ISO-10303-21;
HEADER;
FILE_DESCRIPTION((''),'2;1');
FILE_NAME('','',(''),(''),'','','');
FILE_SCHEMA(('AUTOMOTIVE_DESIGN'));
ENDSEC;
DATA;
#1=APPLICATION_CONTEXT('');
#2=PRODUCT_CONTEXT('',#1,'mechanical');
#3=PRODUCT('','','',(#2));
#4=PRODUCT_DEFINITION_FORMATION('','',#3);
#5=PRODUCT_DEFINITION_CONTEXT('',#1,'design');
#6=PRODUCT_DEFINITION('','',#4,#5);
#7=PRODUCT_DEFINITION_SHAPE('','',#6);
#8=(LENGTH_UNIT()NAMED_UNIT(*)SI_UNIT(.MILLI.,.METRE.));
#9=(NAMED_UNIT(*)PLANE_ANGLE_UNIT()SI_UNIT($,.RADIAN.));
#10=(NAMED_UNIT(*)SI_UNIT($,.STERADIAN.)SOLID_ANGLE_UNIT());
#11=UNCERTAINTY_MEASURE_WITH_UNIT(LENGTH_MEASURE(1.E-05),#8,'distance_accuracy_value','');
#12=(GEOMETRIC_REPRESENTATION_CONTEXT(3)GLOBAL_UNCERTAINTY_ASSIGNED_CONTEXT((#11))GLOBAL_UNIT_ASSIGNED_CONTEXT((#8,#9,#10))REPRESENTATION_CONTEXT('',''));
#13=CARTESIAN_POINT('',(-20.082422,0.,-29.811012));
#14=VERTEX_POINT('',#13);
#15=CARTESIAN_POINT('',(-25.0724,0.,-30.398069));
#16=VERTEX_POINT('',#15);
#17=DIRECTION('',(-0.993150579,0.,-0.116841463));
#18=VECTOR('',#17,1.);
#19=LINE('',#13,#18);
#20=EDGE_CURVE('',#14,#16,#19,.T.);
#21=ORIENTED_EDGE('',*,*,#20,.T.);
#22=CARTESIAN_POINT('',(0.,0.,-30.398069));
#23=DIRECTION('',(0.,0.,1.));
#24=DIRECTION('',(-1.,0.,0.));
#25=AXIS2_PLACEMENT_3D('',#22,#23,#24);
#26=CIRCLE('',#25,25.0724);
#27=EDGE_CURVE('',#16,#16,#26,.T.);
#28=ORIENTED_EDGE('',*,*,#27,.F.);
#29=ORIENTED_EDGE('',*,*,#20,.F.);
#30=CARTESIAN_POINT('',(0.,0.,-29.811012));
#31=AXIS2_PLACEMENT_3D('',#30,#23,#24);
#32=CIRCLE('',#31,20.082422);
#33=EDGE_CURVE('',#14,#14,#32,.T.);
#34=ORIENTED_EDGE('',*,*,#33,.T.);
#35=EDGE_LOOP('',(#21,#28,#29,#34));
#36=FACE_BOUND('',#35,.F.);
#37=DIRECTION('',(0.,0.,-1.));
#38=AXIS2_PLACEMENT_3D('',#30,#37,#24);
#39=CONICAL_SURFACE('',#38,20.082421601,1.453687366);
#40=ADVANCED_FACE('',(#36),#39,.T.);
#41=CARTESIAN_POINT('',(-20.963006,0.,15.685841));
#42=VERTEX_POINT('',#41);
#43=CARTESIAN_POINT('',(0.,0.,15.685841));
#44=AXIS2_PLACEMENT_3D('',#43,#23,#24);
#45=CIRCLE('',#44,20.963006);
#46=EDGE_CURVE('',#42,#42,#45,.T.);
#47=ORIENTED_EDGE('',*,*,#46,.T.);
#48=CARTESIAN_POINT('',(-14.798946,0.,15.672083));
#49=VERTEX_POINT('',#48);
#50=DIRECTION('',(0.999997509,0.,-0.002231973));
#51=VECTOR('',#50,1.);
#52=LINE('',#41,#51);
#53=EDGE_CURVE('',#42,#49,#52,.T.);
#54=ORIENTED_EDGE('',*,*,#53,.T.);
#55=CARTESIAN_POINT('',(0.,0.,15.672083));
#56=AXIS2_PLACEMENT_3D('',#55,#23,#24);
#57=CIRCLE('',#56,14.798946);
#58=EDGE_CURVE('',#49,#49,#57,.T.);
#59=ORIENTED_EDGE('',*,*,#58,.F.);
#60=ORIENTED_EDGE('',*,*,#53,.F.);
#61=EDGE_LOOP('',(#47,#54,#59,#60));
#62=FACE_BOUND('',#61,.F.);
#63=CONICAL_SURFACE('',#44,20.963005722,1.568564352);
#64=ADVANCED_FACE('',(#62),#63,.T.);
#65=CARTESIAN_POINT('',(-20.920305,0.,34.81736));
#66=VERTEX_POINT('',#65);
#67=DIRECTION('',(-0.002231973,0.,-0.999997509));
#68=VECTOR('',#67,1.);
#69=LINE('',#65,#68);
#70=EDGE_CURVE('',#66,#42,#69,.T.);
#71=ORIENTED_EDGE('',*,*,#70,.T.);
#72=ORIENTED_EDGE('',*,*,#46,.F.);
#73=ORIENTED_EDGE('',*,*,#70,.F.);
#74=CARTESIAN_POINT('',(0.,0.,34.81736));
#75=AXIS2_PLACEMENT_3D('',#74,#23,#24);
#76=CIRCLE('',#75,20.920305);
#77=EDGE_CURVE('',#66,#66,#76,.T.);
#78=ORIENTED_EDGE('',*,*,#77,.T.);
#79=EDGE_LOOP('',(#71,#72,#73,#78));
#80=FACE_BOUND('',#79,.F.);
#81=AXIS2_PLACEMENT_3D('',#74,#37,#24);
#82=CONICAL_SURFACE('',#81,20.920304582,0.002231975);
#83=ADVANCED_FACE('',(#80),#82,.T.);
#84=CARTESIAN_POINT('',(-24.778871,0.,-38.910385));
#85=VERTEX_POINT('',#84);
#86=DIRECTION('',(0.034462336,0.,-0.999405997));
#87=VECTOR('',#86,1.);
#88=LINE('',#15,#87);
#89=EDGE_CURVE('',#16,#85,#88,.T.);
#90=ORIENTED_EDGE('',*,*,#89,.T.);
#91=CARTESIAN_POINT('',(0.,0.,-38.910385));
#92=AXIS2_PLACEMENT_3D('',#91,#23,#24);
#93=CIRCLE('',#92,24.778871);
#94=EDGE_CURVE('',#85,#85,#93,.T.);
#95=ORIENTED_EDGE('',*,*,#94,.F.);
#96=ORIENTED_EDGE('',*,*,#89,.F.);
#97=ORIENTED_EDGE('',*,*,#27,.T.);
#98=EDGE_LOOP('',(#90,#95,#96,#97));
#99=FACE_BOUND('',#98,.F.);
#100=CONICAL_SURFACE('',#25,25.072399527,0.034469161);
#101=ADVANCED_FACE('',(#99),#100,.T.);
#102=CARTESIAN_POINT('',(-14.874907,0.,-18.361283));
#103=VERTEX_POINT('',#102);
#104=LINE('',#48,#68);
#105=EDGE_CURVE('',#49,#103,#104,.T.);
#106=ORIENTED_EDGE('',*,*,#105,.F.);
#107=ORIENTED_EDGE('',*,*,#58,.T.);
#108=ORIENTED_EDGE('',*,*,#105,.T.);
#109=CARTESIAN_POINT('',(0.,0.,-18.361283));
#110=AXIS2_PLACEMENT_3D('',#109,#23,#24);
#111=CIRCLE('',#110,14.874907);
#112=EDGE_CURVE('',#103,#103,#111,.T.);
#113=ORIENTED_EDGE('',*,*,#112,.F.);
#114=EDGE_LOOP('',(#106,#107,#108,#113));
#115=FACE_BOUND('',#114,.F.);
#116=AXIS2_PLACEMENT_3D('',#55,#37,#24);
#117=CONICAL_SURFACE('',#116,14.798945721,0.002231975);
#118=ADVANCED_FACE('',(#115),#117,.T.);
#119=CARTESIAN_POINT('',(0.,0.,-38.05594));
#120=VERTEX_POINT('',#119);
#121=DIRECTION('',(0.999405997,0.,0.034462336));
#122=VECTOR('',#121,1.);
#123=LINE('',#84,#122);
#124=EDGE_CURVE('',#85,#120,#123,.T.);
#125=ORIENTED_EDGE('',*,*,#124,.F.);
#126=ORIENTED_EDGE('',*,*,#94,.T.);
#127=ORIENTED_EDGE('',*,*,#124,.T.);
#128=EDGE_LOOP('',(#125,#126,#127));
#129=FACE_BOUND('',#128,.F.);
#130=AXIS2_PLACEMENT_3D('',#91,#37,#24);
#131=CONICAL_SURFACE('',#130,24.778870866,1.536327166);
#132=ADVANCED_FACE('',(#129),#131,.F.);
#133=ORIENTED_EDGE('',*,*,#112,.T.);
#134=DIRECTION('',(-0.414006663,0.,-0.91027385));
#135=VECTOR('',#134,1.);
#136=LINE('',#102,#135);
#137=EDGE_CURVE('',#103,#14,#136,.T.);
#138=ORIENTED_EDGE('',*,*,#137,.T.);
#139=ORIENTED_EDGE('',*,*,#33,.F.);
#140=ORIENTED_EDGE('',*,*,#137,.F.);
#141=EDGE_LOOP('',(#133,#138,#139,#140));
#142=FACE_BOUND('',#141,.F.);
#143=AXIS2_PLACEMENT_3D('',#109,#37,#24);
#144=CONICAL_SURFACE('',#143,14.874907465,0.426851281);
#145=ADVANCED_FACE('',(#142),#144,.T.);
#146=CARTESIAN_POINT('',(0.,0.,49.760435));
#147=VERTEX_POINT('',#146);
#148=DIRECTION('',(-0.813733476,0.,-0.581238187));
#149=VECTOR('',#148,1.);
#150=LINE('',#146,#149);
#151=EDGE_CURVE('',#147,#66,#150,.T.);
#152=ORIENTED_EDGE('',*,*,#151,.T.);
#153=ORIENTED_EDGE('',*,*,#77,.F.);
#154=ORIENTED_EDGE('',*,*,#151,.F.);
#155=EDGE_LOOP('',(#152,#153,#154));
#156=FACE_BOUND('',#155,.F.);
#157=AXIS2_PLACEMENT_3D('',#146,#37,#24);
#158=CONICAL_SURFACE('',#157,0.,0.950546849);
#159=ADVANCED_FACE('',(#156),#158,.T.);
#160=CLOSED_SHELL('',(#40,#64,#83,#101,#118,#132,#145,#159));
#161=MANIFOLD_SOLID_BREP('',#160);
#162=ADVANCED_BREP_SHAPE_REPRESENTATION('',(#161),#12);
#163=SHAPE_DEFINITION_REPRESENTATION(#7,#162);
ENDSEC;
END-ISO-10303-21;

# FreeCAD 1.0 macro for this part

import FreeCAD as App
import Part
import Sketcher

V = App.Vector

doc = App.newDocument("Part")
body = doc.addObject("PartDesign::Body", "Body")

sketch1 = doc.addObject("Sketcher::SketchObject", "Sketch")
body.addObject(sketch1)
sketch1.AttachmentSupport = (doc.XZ_Plane, [""])
sketch1.MapMode = "FlatFace"
sketch1.addGeometry([
    Part.LineSegment(V(0, 50, 0), V(-21, 35, 0)),
    Part.LineSegment(V(-21, 35, 0), V(-21, 16, 0)),
    Part.LineSegment(V(-21, 16, 0), V(-15, 16, 0)),
    Part.LineSegment(V(-15, 16, 0), V(-15, -18, 0)),
    Part.LineSegment(V(-15, -18, 0), V(-20, -30, 0)),
    Part.LineSegment(V(-20, -30, 0), V(-25, -30, 0)),
    Part.LineSegment(V(-25, -30, 0), V(-25, -39, 0)),
    Part.LineSegment(V(-25, -39, 0), V(0, -38, 0)),
    Part.LineSegment(V(0, -38, 0), V(0, 50, 0)),
], False)
sketch1.addConstraint([
    Sketcher.Constraint("Coincident", 0, 2, 1, 1),
    Sketcher.Constraint("Coincident", 1, 2, 2, 1),
    Sketcher.Constraint("Coincident", 2, 2, 3, 1),
    Sketcher.Constraint("Coincident", 3, 2, 4, 1),
    Sketcher.Constraint("Coincident", 4, 2, 5, 1),
    Sketcher.Constraint("Coincident", 5, 2, 6, 1),
    Sketcher.Constraint("Coincident", 6, 2, 7, 1),
    Sketcher.Constraint("Coincident", 7, 2, 8, 1),
    Sketcher.Constraint("Coincident", 8, 2, 0, 1),
    Sketcher.Constraint("Vertical", 8),
    Sketcher.Constraint("PointOnObject", 7, 2, -2),
    Sketcher.Constraint("Perpendicular", 1, 2),
    Sketcher.Constraint("Perpendicular", 2, 3),
    Sketcher.Constraint("Perpendicular", 6, 7),
    Sketcher.Constraint("Distance", 7, 24.793598),
    Sketcher.Constraint("DistanceX", 5, 2, -1, 1, 25.0724),
    Sketcher.Constraint("DistanceX", 1, 2, 0, 2, 0.042701),
    Sketcher.Constraint("DistanceX", 1, 2, 3, 2, 6.088098),
    Sketcher.Constraint("Distance", 3, 34.033451),
    Sketcher.Constraint("DistanceY", 8, 1, 8, 2, 87.816375),
    Sketcher.Constraint("DistanceY", -1, 1, 0, 2, 34.81736),
    Sketcher.Constraint("DistanceY", -1, 1, 1, 2, 15.685841),
    Sketcher.Constraint("DistanceX", 4, 2, -1, 1, 20.082422),
    Sketcher.Constraint("DistanceY", 4, 2, -1, 1, 29.811012),
    Sketcher.Constraint("DistanceY", 5, 2, -1, 1, 30.398069),
    Sketcher.Constraint("DistanceY", 7, 2, -1, 1, 38.05594),
    Sketcher.Constraint("Distance", 0, 25.709038),
])
revolution = doc.addObject("PartDesign::Revolution", "Revolution")
body.addObject(revolution)
revolution.Profile = sketch1
revolution.ReferenceAxis = (sketch1, ["V_Axis"])
revolution.Angle = 360

doc.recompute()
